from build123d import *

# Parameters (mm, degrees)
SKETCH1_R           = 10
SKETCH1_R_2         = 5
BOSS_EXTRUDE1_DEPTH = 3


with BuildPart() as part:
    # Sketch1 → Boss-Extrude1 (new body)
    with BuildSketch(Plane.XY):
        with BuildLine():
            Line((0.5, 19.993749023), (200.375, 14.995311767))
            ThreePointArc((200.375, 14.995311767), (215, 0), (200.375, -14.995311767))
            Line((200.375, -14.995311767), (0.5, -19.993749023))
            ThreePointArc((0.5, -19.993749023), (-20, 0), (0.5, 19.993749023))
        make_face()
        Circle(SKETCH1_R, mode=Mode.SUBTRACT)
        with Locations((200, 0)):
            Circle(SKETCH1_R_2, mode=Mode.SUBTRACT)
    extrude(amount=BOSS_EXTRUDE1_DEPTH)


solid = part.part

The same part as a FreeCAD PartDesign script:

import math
import FreeCAD as App
import Part
import Sketcher
from FreeCAD import Vector
Q = App.Units.Quantity

doc = App.newDocument("Part")
params = doc.addObject("Spreadsheet::Sheet", "Params")
for row, (alias, value) in enumerate([
    ("sketch1_diameter", "10 mm"),
    ("sketch1_diameter2", "20 mm"),
    ("sketch1_radius", "20 mm"),
    ("sketch1_radius2", "15 mm"),
    ("pad1_length", "3 mm"),
], start=1):
    params.set(f"A{row}", alias)
    params.set(f"B{row}", "=" + value)
    params.setAlias(f"B{row}", alias)

body = doc.addObject("PartDesign::Body", "Body")

sketch1 = doc.addObject("Sketcher::SketchObject", "Sketch")
body.addObject(sketch1)
sketch1.AttachmentSupport = (doc.XY_Plane, [""])
sketch1.MapMode = "FlatFace"
sketch1.addGeometry([
    Part.LineSegment(Vector(200, 15, 0), Vector(0, 20, 0)),
    Part.ArcOfCircle(Part.Circle(Vector(0, 0, 0), Vector(0, 0, 1), 20), math.radians(89), math.radians(271)),
    Part.LineSegment(Vector(0, -20, 0), Vector(200, -15, 0)),
    Part.ArcOfCircle(Part.Circle(Vector(200, 0, 0), Vector(0, 0, 1), 15), math.radians(-89), math.radians(89)),
    Part.Circle(Vector(200, 0, 0), Vector(0, 0, 1), 5),
    Part.Circle(Vector(0, 0, 0), Vector(0, 0, 1), 10),
], False)
sketch1.addConstraint([
    Sketcher.Constraint("Tangent", 0, 2, 1, 1),
    Sketcher.Constraint("Tangent", 1, 2, 2, 1),
    Sketcher.Constraint("Tangent", 2, 2, 3, 1),
    Sketcher.Constraint("Tangent", 3, 2, 0, 1),
    Sketcher.Constraint("Coincident", 1, 3, -1, 1),
    Sketcher.Constraint("Coincident", 5, 3, -1, 1),
    Sketcher.Constraint("Coincident", 4, 3, 3, 3),
    Sketcher.Constraint("PointOnObject", 3, 3, -1),
    Sketcher.Constraint("Diameter", 4, Q("10 mm")),
    Sketcher.Constraint("Diameter", 5, Q("20 mm")),
    Sketcher.Constraint("Radius", 1, Q("20 mm")),
    Sketcher.Constraint("Radius", 3, Q("15 mm")),
    Sketcher.Constraint("DistanceX", -1, 1, 3, 3, Q("200 mm")),
])
sketch1.setExpression("Constraints[8]", "Params.sketch1_diameter")
sketch1.setExpression("Constraints[9]", "Params.sketch1_diameter2")
sketch1.setExpression("Constraints[10]", "Params.sketch1_radius")
sketch1.setExpression("Constraints[11]", "Params.sketch1_radius2")
pad1 = doc.addObject("PartDesign::Pad", "Pad")
body.addObject(pad1)
pad1.Profile = sketch1
pad1.setExpression("Length", "Params.pad1_length")

doc.recompute()
